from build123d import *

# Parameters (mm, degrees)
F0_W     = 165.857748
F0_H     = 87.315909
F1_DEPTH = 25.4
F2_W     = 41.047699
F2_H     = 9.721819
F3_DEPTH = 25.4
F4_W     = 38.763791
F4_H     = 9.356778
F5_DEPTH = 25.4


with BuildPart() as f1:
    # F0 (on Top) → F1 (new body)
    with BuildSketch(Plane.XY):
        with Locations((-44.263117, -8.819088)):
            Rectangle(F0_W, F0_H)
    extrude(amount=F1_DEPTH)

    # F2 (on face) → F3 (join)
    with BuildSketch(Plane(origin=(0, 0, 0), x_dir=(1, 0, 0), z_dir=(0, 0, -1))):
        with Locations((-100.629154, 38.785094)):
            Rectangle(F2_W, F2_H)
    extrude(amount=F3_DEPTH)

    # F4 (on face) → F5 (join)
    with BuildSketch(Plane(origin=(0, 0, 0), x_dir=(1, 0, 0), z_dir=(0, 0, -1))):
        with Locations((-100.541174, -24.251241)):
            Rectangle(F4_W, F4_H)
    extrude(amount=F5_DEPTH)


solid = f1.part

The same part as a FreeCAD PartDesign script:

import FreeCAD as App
import Part
import Sketcher
from FreeCAD import Vector
Q = App.Units.Quantity


def add_polygon(sketch, points):
    """Adds a closed chain of lines whose ends are joined by coincident constraints."""
    first, n = sketch.GeometryCount, len(points)
    for a, b in zip(points, points[1:] + points[:1]):
        sketch.addGeometry(Part.LineSegment(App.Vector(*a, 0), App.Vector(*b, 0)), False)
    for i in range(n):
        sketch.addConstraint(Sketcher.Constraint("Coincident", first + i, 2, first + (i + 1) % n, 1))

doc = App.newDocument("Part")
body = doc.addObject("PartDesign::Body", "Body")

# Sketch on XY plane
sketch1 = doc.addObject("Sketcher::SketchObject", "Sketch")
body.addObject(sketch1)
sketch1.AttachmentSupport = (doc.XY_Plane, [""])
sketch1.MapMode = "FlatFace"
add_polygon(sketch1, [(-127.191991, 34.838867), (-127.191991, -52.477043), (38.665757, -52.477043), (38.665757, 34.838867)])  # lines 0-3
sketch1.addConstraint([
    Sketcher.Constraint("Vertical", 0),
    Sketcher.Constraint("Horizontal", 1),
    Sketcher.Constraint("Vertical", 2),
    Sketcher.Constraint("Horizontal", 3),
    Sketcher.Constraint("DistanceX", 1, 1, 1, 2, 165.857748),
    Sketcher.Constraint("DistanceY", 0, 2, 0, 1, 87.315909),
    Sketcher.Constraint("DistanceX", 0, 2, -1, 1, 127.191991),
    Sketcher.Constraint("DistanceY", 0, 2, -1, 1, 52.477043),
])
pad1 = doc.addObject("PartDesign::Pad", "Pad")
body.addObject(pad1)
pad1.Profile = sketch1
pad1.Length = Q("1 in")

# Sketch on XY plane
sketch2 = doc.addObject("Sketcher::SketchObject", "Sketch001")
body.addObject(sketch2)
sketch2.AttachmentSupport = (doc.XY_Plane, [""])
sketch2.MapMode = "FlatFace"
add_polygon(sketch2, [(-121.153003, -43.646003), (-121.153003, -33.924185), (-80.105305, -33.924185), (-80.105305, -43.646003)])  # lines 0-3
sketch2.addConstraint([
    Sketcher.Constraint("Vertical", 0),
    Sketcher.Constraint("Horizontal", 1),
    Sketcher.Constraint("Vertical", 2),
    Sketcher.Constraint("Horizontal", 3),
    Sketcher.Constraint("DistanceX", 1, 1, 1, 2, 41.047699),
    Sketcher.Constraint("DistanceY", 0, 1, 0, 2, 9.721819),
    Sketcher.Constraint("DistanceX", 0, 2, -1, 1, 121.153003),
    Sketcher.Constraint("DistanceY", 0, 2, -1, 1, 33.924185),
])
pad2 = doc.addObject("PartDesign::Pad", "Pad001")
body.addObject(pad2)
pad2.Profile = sketch2
pad2.Length = Q("1 in")
pad2.Reversed = True

# Sketch on XY plane
sketch3 = doc.addObject("Sketcher::SketchObject", "Sketch002")
body.addObject(sketch3)
sketch3.AttachmentSupport = (doc.XY_Plane, [""])
sketch3.MapMode = "FlatFace"
add_polygon(sketch3, [(-119.923069, 19.572852), (-119.923069, 28.92963), (-81.159278, 28.92963), (-81.159278, 19.572852)])  # lines 0-3
sketch3.addConstraint([
    Sketcher.Constraint("Vertical", 0),
    Sketcher.Constraint("Horizontal", 1),
    Sketcher.Constraint("Vertical", 2),
    Sketcher.Constraint("Horizontal", 3),
    Sketcher.Constraint("DistanceX", 1, 1, 1, 2, 38.763791),
    Sketcher.Constraint("DistanceY", 0, 1, 0, 2, 9.356778),
    Sketcher.Constraint("DistanceX", 0, 2, -1, 1, 119.923069),
    Sketcher.Constraint("DistanceY", -1, 1, 0, 2, 28.92963),
])
pad3 = doc.addObject("PartDesign::Pad", "Pad002")
body.addObject(pad3)
pad3.Profile = sketch3
pad3.Length = Q("1 in")
pad3.Reversed = True

doc.recompute()
